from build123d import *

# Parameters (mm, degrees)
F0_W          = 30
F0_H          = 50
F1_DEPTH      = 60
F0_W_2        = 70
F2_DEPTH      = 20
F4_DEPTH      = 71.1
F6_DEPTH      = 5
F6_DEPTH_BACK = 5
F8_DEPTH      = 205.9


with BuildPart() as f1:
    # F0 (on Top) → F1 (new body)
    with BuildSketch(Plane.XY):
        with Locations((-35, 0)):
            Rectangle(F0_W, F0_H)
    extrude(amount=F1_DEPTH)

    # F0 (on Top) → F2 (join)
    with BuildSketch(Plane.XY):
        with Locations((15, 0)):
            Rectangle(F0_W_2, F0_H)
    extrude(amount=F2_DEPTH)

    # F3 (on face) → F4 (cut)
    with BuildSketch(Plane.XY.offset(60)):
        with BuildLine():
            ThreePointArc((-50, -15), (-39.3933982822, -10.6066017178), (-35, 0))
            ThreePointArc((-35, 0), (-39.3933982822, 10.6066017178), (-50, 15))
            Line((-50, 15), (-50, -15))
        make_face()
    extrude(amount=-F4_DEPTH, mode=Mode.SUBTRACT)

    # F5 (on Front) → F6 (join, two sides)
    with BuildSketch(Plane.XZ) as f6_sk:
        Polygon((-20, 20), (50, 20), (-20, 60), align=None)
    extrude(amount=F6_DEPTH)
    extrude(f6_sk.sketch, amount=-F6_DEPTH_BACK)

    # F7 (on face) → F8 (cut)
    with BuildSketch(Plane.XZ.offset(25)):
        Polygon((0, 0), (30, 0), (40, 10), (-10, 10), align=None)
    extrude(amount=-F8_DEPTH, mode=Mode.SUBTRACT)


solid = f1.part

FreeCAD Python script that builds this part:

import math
import FreeCAD as App
import Part
import Sketcher

V = App.Vector


def add_polygon(sketch, points):
    """Adds a closed chain of lines whose ends are joined by coincident constraints."""
    first, n = sketch.GeometryCount, len(points)
    for a, b in zip(points, points[1:] + points[:1]):
        sketch.addGeometry(Part.LineSegment(App.Vector(*a, 0), App.Vector(*b, 0)), False)
    for i in range(n):
        sketch.addConstraint(Sketcher.Constraint("Coincident", first + i, 2, first + (i + 1) % n, 1))

doc = App.newDocument("Part")
body = doc.addObject("PartDesign::Body", "Body")

# Sketch on XY plane
sketch1 = body.newObject("Sketcher::SketchObject", "Sketch")
sketch1.AttachmentSupport = (doc.getObject("XY_Plane"), [""])
sketch1.MapMode = "FlatFace"
add_polygon(sketch1, [(-50, 25), (-50, -25), (-20, -25), (-20, 25)])  # lines 0-3
sketch1.addConstraint(Sketcher.Constraint("Vertical", 0))
sketch1.addConstraint(Sketcher.Constraint("Horizontal", 1))
sketch1.addConstraint(Sketcher.Constraint("Vertical", 2))
sketch1.addConstraint(Sketcher.Constraint("Horizontal", 3))
sketch1.addConstraint(Sketcher.Constraint("DistanceX", 1, 1, 1, 2, 30.0))
sketch1.addConstraint(Sketcher.Constraint("DistanceY", 0, 2, 0, 1, 50.0))
sketch1.addConstraint(Sketcher.Constraint("DistanceX", 0, 2, -1, 1, 50.0))
sketch1.addConstraint(Sketcher.Constraint("DistanceY", 0, 2, -1, 1, 25.0))
pad1 = body.newObject("PartDesign::Pad", "Pad")
pad1.Profile = sketch1
pad1.Length = 60

# Sketch on XY plane
sketch2 = body.newObject("Sketcher::SketchObject", "Sketch001")
sketch2.AttachmentSupport = (doc.getObject("XY_Plane"), [""])
sketch2.MapMode = "FlatFace"
add_polygon(sketch2, [(-20, 25), (-20, -25), (50, -25), (50, 25)])  # lines 0-3
sketch2.addConstraint(Sketcher.Constraint("Vertical", 0))
sketch2.addConstraint(Sketcher.Constraint("Horizontal", 1))
sketch2.addConstraint(Sketcher.Constraint("Vertical", 2))
sketch2.addConstraint(Sketcher.Constraint("Horizontal", 3))
sketch2.addConstraint(Sketcher.Constraint("DistanceX", 1, 1, 1, 2, 70.0))
sketch2.addConstraint(Sketcher.Constraint("DistanceY", 0, 2, 0, 1, 50.0))
sketch2.addConstraint(Sketcher.Constraint("DistanceX", 0, 2, -1, 1, 20.0))
sketch2.addConstraint(Sketcher.Constraint("DistanceY", 0, 2, -1, 1, 25.0))
pad2 = body.newObject("PartDesign::Pad", "Pad001")
pad2.Profile = sketch2
pad2.Length = 20

# Sketch on XY plane
sketch3 = body.newObject("Sketcher::SketchObject", "Sketch002")
sketch3.AttachmentSupport = (doc.getObject("XY_Plane"), [""])
sketch3.MapMode = "FlatFace"
sketch3.AttachmentOffset = App.Placement(V(0, 0, 60), App.Rotation())
sketch3.addGeometry(Part.ArcOfCircle(Part.Circle(V(-50, 0, 0), V(0, 0, 1), 15), math.radians(-90), math.radians(90)), False)
sketch3.addGeometry(Part.LineSegment(V(-50, 15, 0), V(-50, -15, 0)), False)
sketch3.addConstraint(Sketcher.Constraint("Coincident", 0, 1, 1, 2))
sketch3.addConstraint(Sketcher.Constraint("Coincident", 1, 1, 0, 2))
sketch3.addConstraint(Sketcher.Constraint("Vertical", 1))
sketch3.addConstraint(Sketcher.Constraint("PointOnObject", 0, 3, -1))
sketch3.addConstraint(Sketcher.Constraint("Radius", 0, 15.0))
sketch3.addConstraint(Sketcher.Constraint("DistanceX", 0, 3, -1, 1, 50.0))
sketch3.addConstraint(Sketcher.Constraint("DistanceX", 0, 1, -1, 1, 50.0))
pocket1 = body.newObject("PartDesign::Pocket", "Pocket")
pocket1.Profile = sketch3
pocket1.Length = 71.1

# Sketch on XZ plane
sketch4 = body.newObject("Sketcher::SketchObject", "Sketch003")
sketch4.AttachmentSupport = (doc.getObject("XZ_Plane"), [""])
sketch4.MapMode = "FlatFace"
add_polygon(sketch4, [(-20, 20), (50, 20), (-20, 60)])  # lines 0-2
sketch4.addConstraint(Sketcher.Constraint("Horizontal", 0))
sketch4.addConstraint(Sketcher.Constraint("Vertical", 2))
sketch4.addConstraint(Sketcher.Constraint("DistanceX", 0, 1, 0, 2, 70.0))
sketch4.addConstraint(Sketcher.Constraint("DistanceY", 2, 2, 2, 1, 40.0))
sketch4.addConstraint(Sketcher.Constraint("DistanceX", -1, 1, 0, 2, 50.0))
sketch4.addConstraint(Sketcher.Constraint("DistanceY", -1, 1, 0, 2, 20.0))
pad3 = body.newObject("PartDesign::Pad", "Pad002")
pad3.Profile = sketch4
pad3.Type = "TwoLengths"
pad3.Length = 5
pad3.Length2 = 5

# Sketch on XZ plane
sketch5 = body.newObject("Sketcher::SketchObject", "Sketch004")
sketch5.AttachmentSupport = (doc.getObject("XZ_Plane"), [""])
sketch5.MapMode = "FlatFace"
sketch5.AttachmentOffset = App.Placement(V(0, 0, 25), App.Rotation())
add_polygon(sketch5, [(0, 0), (30, 0), (40, 10), (-10, 10)])  # lines 0-3
sketch5.addConstraint(Sketcher.Constraint("Horizontal", 0))
sketch5.addConstraint(Sketcher.Constraint("Horizontal", 2))
sketch5.addConstraint(Sketcher.Constraint("Coincident", 3, 2, -1, 1))
sketch5.addConstraint(Sketcher.Constraint("Perpendicular", 1, 3))
sketch5.addConstraint(Sketcher.Constraint("Equal", 1, 3))
sketch5.addConstraint(Sketcher.Constraint("DistanceX", 0, 1, 0, 2, 30.0))
sketch5.addConstraint(Sketcher.Constraint("DistanceX", 2, 2, 2, 1, 50.0))
pocket2 = body.newObject("PartDesign::Pocket", "Pocket001")
pocket2.Profile = sketch5
pocket2.Length = 205.9

doc.recompute()
